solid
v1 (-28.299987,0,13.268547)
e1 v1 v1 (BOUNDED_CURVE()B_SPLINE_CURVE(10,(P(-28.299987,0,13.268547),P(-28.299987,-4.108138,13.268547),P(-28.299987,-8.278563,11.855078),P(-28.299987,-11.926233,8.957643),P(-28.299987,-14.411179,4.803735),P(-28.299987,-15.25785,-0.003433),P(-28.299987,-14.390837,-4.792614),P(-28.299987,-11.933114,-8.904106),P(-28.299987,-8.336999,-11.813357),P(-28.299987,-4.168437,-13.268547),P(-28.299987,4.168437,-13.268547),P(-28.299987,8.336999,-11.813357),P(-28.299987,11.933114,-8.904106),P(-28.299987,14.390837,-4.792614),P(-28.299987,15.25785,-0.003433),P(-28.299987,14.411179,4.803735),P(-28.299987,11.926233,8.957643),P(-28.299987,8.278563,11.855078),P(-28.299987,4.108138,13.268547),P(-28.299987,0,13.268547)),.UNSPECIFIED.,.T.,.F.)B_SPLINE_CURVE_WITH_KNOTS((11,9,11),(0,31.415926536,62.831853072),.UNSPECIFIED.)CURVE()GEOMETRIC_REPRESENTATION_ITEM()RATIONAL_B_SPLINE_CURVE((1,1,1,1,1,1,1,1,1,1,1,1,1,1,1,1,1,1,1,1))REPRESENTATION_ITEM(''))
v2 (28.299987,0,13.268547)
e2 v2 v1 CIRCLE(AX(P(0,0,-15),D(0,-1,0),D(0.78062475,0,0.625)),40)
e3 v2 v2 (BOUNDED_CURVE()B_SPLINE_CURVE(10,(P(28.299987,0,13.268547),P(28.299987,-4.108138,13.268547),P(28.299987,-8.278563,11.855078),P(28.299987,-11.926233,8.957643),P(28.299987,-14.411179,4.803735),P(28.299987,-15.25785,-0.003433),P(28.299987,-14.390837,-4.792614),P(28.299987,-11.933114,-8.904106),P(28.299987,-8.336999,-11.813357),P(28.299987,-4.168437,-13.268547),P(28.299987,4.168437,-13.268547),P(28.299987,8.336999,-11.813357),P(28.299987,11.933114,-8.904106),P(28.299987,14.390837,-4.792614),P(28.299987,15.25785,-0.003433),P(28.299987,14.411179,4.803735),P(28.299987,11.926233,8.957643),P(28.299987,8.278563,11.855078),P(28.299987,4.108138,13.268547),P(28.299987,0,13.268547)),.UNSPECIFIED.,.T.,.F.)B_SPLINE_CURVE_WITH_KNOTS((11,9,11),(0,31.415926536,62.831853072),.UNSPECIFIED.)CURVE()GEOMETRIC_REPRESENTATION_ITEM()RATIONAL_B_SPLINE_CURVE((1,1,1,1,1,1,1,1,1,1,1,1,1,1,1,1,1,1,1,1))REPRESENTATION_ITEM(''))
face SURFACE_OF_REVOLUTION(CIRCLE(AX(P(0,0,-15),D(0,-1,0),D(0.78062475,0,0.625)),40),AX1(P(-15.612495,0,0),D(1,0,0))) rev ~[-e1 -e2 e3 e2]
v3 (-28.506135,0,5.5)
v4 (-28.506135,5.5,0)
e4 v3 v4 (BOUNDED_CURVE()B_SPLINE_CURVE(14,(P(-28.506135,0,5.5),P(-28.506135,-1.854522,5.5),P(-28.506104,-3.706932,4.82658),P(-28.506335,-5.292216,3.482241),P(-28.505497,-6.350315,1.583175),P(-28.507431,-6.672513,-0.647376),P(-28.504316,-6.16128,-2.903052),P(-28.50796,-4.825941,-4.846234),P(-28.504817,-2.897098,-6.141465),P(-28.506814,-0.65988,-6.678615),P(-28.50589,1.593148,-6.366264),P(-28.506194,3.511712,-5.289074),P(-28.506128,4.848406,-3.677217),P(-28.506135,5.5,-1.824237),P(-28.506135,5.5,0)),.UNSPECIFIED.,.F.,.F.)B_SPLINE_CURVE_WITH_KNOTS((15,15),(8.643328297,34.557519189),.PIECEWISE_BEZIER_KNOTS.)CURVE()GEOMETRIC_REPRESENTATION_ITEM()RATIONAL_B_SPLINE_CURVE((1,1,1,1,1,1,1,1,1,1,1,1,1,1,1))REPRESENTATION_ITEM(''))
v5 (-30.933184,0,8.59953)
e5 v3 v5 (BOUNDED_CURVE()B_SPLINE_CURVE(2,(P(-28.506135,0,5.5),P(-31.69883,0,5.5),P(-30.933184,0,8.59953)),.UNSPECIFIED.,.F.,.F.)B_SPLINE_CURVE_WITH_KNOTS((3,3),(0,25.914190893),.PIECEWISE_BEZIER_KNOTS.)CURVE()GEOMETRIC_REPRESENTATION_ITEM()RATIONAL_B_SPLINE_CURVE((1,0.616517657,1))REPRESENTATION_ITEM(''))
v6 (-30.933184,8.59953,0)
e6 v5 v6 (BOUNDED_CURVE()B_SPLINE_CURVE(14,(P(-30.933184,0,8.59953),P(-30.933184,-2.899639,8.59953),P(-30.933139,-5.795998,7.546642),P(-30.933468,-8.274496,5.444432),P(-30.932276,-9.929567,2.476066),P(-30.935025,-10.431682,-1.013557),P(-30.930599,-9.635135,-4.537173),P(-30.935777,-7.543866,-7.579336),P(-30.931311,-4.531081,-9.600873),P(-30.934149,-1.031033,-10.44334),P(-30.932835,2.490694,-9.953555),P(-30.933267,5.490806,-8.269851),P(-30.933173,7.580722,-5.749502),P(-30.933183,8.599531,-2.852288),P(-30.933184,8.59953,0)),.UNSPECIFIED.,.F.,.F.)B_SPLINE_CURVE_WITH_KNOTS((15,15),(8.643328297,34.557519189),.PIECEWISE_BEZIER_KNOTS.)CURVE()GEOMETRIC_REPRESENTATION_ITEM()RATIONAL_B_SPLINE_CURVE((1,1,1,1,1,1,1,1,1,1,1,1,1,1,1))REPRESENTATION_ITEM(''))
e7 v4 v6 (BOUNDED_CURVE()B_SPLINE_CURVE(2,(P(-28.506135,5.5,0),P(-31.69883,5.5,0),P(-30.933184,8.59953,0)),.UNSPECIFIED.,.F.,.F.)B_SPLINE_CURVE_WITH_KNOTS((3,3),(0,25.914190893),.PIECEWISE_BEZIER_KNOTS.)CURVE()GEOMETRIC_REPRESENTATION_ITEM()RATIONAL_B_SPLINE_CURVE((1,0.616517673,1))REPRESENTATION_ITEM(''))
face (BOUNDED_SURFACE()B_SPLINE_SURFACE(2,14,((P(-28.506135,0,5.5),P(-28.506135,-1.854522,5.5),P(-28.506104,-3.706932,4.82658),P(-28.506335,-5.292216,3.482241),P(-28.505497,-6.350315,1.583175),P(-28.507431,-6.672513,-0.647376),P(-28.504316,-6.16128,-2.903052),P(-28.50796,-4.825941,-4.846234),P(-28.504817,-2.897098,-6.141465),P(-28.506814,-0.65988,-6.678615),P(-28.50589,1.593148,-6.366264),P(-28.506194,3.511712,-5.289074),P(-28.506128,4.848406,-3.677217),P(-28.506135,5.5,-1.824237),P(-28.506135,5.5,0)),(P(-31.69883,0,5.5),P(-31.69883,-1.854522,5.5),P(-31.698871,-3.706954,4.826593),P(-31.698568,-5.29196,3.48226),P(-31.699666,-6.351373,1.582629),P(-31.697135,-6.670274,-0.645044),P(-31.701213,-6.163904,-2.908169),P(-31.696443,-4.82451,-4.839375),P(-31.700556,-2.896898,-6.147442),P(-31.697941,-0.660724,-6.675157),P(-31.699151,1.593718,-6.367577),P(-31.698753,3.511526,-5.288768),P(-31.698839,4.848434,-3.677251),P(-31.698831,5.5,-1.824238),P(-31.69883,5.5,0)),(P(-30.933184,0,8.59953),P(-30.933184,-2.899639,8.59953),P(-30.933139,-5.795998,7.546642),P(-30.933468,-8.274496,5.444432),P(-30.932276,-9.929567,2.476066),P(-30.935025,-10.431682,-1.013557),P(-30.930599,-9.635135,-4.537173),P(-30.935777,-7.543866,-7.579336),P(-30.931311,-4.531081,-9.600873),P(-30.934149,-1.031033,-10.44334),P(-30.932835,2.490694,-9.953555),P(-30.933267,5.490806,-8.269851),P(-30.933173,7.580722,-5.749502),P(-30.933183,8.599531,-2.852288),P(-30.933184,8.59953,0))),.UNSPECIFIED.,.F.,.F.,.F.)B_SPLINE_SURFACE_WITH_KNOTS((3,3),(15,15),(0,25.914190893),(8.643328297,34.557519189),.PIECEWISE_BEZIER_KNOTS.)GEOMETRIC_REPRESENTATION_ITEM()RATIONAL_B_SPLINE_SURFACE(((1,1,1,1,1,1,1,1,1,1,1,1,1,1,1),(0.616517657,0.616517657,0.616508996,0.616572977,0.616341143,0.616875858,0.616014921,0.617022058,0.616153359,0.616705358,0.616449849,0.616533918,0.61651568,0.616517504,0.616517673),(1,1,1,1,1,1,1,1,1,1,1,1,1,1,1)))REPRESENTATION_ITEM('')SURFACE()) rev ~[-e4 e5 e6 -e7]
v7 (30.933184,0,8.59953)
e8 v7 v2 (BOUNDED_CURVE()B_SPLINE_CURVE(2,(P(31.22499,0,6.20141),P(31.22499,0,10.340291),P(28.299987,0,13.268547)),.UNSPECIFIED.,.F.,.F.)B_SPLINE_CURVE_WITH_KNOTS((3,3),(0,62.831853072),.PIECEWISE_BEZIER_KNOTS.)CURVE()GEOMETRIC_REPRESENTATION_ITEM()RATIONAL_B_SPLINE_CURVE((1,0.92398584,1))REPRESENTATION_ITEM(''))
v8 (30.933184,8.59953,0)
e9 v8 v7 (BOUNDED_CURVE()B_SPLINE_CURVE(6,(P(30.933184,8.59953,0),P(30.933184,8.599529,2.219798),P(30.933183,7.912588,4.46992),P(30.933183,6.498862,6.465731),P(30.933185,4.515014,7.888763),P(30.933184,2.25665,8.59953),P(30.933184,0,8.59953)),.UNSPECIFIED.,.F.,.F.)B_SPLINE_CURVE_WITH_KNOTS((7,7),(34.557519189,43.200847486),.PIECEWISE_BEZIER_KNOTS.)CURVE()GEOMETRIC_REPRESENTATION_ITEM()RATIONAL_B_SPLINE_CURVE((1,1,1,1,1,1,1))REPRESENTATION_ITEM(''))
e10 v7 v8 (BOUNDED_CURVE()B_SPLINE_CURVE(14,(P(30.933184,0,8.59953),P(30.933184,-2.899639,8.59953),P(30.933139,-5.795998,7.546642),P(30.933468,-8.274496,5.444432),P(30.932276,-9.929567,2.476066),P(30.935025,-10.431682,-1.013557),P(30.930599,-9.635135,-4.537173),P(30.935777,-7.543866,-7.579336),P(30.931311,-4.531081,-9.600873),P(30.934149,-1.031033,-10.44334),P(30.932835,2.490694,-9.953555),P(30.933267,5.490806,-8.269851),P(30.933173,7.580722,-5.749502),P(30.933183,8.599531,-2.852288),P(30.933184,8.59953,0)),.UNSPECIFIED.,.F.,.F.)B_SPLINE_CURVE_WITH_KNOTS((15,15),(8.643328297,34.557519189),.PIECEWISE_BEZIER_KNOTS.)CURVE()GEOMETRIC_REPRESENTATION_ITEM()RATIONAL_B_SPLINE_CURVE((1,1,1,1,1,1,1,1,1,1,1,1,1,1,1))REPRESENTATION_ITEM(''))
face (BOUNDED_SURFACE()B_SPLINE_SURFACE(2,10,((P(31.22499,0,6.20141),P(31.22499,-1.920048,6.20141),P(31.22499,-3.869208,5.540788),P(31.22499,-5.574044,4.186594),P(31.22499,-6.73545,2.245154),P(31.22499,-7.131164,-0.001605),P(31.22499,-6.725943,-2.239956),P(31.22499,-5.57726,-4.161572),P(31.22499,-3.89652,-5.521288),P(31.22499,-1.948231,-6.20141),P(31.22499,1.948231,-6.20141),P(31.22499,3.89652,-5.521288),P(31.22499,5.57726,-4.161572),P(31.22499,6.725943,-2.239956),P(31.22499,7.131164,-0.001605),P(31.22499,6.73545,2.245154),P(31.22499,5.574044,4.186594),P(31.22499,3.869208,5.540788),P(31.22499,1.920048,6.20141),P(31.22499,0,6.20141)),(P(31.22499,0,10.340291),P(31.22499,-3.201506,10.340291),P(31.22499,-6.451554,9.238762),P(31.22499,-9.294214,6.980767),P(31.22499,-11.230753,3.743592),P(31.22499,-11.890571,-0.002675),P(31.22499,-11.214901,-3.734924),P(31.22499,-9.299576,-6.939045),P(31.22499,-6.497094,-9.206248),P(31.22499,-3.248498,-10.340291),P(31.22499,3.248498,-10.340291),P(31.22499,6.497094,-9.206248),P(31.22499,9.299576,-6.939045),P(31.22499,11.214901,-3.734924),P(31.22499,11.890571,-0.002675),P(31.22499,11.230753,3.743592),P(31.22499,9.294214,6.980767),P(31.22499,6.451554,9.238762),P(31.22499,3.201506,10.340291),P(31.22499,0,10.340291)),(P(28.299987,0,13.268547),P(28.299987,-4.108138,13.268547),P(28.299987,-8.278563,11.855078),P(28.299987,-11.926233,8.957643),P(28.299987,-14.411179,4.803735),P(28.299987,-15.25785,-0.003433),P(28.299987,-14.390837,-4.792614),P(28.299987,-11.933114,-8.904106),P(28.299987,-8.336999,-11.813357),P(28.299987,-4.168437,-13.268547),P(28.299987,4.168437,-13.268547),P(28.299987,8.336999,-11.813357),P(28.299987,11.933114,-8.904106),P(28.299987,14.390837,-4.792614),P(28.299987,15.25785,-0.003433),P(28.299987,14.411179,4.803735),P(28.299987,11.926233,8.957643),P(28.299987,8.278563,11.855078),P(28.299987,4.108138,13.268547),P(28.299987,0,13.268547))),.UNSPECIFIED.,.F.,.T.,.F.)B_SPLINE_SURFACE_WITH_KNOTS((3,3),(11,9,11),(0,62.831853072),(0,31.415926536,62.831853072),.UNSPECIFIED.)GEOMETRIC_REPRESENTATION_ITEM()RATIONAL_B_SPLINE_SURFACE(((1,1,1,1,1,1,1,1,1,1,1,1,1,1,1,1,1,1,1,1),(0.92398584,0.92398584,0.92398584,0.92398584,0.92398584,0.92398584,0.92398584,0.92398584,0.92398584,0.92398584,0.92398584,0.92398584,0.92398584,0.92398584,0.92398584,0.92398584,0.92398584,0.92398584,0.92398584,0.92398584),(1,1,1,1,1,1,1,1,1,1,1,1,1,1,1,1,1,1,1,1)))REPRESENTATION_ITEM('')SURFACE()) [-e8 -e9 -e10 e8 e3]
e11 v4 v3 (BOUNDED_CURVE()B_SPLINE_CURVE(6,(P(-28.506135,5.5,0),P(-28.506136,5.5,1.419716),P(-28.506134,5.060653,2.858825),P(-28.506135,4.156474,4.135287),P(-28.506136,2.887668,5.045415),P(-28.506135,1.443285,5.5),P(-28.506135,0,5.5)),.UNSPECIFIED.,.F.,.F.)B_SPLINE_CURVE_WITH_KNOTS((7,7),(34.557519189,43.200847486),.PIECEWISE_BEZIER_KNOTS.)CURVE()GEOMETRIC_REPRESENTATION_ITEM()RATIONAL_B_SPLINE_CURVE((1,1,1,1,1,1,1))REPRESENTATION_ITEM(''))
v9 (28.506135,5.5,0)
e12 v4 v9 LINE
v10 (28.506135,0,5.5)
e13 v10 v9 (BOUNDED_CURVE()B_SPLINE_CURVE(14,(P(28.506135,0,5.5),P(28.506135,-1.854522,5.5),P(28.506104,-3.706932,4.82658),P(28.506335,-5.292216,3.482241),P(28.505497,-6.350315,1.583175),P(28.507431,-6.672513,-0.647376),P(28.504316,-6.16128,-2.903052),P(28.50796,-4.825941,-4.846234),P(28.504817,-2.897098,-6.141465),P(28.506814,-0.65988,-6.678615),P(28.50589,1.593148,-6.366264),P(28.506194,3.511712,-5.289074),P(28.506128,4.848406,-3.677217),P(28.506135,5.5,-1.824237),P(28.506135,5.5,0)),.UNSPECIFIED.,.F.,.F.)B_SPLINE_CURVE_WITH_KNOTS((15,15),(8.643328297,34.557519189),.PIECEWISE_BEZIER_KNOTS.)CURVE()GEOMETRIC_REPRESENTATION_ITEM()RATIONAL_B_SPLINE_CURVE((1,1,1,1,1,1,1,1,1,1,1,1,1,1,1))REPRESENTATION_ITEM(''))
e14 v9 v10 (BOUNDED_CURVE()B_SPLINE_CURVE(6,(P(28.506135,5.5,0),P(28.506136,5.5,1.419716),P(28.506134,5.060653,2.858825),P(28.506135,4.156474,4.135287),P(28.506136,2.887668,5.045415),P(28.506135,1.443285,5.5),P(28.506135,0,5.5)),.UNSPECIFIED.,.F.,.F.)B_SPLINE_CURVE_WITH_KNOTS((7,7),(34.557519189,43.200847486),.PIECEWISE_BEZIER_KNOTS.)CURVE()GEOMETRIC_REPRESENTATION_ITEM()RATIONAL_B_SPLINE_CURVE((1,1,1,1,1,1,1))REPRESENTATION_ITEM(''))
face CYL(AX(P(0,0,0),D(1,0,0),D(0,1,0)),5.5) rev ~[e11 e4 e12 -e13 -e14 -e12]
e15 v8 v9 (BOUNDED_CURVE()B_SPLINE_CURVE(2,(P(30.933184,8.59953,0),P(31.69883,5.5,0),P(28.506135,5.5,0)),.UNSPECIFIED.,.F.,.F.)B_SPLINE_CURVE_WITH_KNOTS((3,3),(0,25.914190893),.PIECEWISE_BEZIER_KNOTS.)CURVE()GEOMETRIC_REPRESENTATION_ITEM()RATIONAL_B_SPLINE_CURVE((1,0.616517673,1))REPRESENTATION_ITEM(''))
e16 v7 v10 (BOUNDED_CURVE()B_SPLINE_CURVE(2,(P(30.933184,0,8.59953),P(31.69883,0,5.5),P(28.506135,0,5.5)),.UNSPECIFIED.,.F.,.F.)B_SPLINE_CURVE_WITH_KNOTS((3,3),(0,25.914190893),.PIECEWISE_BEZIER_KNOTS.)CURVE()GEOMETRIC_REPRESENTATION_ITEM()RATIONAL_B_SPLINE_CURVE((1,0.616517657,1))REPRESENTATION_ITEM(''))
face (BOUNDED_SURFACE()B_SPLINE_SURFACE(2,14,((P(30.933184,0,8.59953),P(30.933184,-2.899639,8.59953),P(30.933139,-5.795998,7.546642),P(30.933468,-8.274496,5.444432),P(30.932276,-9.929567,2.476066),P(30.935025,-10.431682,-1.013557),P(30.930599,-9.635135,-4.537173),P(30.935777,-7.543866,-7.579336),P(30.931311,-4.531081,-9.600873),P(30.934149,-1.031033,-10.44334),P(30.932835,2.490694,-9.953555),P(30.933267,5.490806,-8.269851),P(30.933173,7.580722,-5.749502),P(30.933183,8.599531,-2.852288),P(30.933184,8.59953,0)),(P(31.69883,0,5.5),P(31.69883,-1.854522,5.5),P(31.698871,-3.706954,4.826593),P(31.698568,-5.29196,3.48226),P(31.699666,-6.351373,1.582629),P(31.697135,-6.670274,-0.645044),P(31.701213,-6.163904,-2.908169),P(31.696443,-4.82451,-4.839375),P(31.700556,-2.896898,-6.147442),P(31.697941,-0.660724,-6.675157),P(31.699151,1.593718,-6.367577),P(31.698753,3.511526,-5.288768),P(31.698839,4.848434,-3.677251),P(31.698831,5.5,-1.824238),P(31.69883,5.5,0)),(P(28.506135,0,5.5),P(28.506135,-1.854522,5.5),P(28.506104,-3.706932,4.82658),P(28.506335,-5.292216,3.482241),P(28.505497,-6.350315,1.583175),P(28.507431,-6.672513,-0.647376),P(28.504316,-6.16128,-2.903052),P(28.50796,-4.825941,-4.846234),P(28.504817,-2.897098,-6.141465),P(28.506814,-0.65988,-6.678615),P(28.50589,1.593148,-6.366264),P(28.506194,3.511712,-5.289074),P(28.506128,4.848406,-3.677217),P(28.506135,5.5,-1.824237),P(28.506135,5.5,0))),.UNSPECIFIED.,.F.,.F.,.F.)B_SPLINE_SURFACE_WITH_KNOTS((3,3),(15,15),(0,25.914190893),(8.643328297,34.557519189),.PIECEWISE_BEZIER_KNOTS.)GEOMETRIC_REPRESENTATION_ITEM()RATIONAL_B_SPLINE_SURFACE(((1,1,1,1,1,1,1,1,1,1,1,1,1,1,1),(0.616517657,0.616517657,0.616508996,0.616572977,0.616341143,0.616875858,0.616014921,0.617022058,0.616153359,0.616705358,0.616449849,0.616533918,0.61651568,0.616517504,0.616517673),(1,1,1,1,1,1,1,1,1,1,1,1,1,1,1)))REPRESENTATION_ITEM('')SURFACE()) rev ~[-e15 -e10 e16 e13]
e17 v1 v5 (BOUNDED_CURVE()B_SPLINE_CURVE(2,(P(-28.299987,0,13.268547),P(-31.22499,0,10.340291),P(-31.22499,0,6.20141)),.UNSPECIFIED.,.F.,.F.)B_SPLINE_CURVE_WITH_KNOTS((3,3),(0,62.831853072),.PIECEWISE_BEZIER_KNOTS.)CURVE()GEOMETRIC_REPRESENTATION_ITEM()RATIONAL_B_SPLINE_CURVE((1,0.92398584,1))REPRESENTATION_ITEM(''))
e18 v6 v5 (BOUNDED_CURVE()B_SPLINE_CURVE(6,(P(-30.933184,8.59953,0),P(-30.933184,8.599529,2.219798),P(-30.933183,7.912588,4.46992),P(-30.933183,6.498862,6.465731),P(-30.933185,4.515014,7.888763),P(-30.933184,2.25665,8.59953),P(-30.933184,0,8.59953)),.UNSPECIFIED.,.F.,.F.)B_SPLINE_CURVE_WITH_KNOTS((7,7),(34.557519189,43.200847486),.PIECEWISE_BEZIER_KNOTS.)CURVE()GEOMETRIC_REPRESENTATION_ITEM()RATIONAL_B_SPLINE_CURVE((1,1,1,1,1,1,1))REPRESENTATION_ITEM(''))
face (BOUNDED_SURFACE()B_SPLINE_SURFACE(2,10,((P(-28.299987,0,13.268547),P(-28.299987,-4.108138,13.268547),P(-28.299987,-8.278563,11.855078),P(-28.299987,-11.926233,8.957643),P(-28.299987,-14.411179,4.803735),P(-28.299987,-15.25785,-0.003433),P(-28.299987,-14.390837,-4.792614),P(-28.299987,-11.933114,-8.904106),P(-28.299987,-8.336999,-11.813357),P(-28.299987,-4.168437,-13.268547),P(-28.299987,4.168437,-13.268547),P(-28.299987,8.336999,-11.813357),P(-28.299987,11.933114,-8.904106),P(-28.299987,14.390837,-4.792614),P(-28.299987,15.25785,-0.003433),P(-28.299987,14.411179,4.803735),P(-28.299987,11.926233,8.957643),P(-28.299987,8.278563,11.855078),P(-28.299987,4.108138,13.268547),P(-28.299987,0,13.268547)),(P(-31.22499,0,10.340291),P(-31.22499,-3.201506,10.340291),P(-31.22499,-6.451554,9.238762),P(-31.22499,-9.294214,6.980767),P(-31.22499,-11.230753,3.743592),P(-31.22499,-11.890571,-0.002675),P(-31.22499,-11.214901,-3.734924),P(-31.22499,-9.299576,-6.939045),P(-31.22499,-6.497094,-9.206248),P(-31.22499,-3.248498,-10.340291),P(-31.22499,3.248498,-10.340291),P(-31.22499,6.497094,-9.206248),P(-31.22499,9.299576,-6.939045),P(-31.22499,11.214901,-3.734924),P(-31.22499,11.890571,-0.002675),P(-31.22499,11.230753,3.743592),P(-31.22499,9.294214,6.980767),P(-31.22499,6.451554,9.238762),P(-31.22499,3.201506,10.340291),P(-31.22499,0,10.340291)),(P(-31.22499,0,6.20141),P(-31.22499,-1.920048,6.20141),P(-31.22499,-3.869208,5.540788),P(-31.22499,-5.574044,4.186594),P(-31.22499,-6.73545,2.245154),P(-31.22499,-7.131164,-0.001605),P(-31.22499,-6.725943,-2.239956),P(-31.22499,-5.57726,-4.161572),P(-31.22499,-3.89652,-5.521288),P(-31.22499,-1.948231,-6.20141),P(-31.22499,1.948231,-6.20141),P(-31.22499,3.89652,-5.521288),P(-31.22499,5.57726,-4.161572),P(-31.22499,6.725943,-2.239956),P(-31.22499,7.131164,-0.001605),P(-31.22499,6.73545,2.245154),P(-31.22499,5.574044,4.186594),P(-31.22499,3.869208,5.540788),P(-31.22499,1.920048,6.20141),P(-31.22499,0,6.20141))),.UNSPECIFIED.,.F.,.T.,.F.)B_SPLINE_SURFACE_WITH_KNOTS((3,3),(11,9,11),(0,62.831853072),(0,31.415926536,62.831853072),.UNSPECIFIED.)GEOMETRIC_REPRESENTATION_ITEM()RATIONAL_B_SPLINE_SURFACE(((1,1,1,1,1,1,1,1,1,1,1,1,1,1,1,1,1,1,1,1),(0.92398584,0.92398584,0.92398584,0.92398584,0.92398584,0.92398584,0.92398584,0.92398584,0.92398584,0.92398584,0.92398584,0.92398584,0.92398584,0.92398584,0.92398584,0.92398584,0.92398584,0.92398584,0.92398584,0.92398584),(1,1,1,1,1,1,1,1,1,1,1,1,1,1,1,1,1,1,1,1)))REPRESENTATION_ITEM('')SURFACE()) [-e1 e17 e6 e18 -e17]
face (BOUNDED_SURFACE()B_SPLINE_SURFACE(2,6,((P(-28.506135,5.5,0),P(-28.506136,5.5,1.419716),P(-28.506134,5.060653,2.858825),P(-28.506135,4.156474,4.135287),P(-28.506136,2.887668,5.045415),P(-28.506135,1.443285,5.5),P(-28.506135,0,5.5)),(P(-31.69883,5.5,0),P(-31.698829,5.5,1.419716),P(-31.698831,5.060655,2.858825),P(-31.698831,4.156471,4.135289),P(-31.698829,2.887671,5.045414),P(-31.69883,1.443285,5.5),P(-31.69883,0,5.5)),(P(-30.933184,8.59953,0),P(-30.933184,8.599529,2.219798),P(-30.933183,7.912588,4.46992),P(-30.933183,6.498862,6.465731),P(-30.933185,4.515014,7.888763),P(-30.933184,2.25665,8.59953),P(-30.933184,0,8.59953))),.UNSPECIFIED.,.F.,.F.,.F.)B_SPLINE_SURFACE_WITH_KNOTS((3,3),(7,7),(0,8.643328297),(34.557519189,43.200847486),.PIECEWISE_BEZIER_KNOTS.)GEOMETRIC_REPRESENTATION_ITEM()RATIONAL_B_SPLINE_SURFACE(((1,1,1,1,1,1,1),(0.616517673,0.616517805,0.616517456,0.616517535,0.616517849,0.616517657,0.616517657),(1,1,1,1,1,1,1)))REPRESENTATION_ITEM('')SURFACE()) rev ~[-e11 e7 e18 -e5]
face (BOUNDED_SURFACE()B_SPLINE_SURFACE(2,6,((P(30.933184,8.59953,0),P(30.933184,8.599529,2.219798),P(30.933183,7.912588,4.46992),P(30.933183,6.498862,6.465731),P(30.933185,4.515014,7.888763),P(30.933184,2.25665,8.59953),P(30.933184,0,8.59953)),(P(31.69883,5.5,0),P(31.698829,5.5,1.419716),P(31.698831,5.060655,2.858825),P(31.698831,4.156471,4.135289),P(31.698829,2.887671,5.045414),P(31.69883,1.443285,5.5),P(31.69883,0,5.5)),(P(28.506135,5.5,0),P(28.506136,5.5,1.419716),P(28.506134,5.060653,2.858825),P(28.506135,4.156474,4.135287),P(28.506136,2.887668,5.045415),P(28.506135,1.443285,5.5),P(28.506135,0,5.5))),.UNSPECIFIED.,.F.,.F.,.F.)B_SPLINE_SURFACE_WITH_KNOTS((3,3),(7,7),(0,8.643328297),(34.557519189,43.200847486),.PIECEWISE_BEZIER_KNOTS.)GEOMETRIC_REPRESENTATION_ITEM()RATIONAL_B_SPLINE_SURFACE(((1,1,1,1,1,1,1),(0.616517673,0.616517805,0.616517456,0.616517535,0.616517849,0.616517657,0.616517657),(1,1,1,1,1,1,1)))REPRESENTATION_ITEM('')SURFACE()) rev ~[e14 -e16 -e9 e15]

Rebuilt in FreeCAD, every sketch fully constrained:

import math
import FreeCAD as App
import Part
import Sketcher

V = App.Vector
Q = App.Units.Quantity


def edges_at(feature, points):
    """Names of the edges that pass closest to the given points."""
    edges = feature.Shape.Edges
    near = lambda p: min(range(len(edges)), key=lambda i: edges[i].distToShape(Part.Vertex(*p))[0])
    return sorted({f"Edge{near(p) + 1}" for p in points})

doc = App.newDocument("Part")
params = doc.addObject("Spreadsheet::Sheet", "Params")
for row, (alias, value) in enumerate([
    ("sketch1_radius", "40 mm"),
    ("sketch1_height", "10 mm"),
    ("revolution_angle", "360 deg"),
    ("fillet_radius", "10 mm"),
    ("sketch2_diameter", "11 mm"),
    ("pocket1_length", "200 mm"),
    ("fillet2_radius", "2.5 mm"),
], start=1):
    params.set(f"A{row}", alias)
    params.set(f"B{row}", "=" + value)
    params.setAlias(f"B{row}", alias)

body = doc.addObject("PartDesign::Body", "Body")

sketch1 = doc.addObject("Sketcher::SketchObject", "Sketch")
body.addObject(sketch1)
sketch1.AttachmentSupport = (doc.XZ_Plane, [""])
sketch1.MapMode = "FlatFace"
sketch1.addGeometry(Part.LineSegment(V(31, 0, 0), V(31, 10, 0)), False)
sketch1.addGeometry(Part.ArcOfCircle(Part.Circle(V(0, -15, 0), V(0, 0, 1), 40), math.radians(39), math.radians(141)), False)
sketch1.addGeometry(Part.LineSegment(V(-31, 10, 0), V(-31, 0, 0)), False)
sketch1.addGeometry(Part.LineSegment(V(-31, 0, 0), V(31, 0, 0)), False)
sketch1.addConstraint(Sketcher.Constraint("Coincident", 0, 2, 1, 1))
sketch1.addConstraint(Sketcher.Constraint("Coincident", 1, 2, 2, 1))
sketch1.addConstraint(Sketcher.Constraint("Coincident", 2, 2, 3, 1))
sketch1.addConstraint(Sketcher.Constraint("Coincident", 3, 2, 0, 1))
sketch1.addConstraint(Sketcher.Constraint("Vertical", 0))
sketch1.addConstraint(Sketcher.Constraint("Vertical", 2))
sketch1.addConstraint(Sketcher.Constraint("Horizontal", 3))
sketch1.addConstraint(Sketcher.Constraint("Symmetric", 2, 2, 3, 2, -1, 1))
sketch1.addConstraint(Sketcher.Constraint("PointOnObject", 1, 3, -2))
sketch1.addConstraint(Sketcher.Constraint("Radius", 1, Q("40 mm")))
sketch1.addConstraint(Sketcher.Constraint("DistanceY", 0, 1, 0, 2, Q("10 mm")))
sketch1.addConstraint(Sketcher.Constraint("DistanceY", 1, 3, -1, 1, Q("15 mm")))
sketch1.setExpression("Constraints[9]", "Params.sketch1_radius")
sketch1.setExpression("Constraints[10]", "Params.sketch1_height")
revolution = doc.addObject("PartDesign::Revolution", "Revolution")
body.addObject(revolution)
revolution.Profile = sketch1
revolution.ReferenceAxis = (sketch1, ["H_Axis"])
revolution.setExpression("Angle", "Params.revolution_angle")
doc.recompute()

fillet = doc.addObject("PartDesign::Fillet", "Fillet")
body.addObject(fillet)
fillet.Base = (revolution, edges_at(revolution, [(-31.225, 0, -10), (31.225, 0, -10)]))
fillet.setExpression("Radius", "Params.fillet_radius")

sketch2 = doc.addObject("Sketcher::SketchObject", "Sketch001")
body.addObject(sketch2)
sketch2.AttachmentSupport = (doc.YZ_Plane, [""])
sketch2.MapMode = "FlatFace"
sketch2.addGeometry(Part.Circle(V(0, 0, 0), V(0, 0, 1), 6), False)
sketch2.addConstraint(Sketcher.Constraint("Coincident", 0, 3, -1, 1))
sketch2.addConstraint(Sketcher.Constraint("Diameter", 0, Q("11 mm")))
sketch2.setExpression("Constraints[1]", "Params.sketch2_diameter")
pocket1 = doc.addObject("PartDesign::Pocket", "Pocket")
body.addObject(pocket1)
pocket1.Profile = sketch2
pocket1.setExpression("Length", "Params.pocket1_length")
pocket1.Midplane = True
doc.recompute()

fillet2 = doc.addObject("PartDesign::Fillet", "Fillet001")
body.addObject(fillet2)
fillet2.Base = (pocket1, edges_at(pocket1, [(-31.225, -5.5, 0), (0, 5.5, 0), (31.225, -5.5, 0)]))
fillet2.setExpression("Radius", "Params.fillet2_radius")

doc.recompute()
